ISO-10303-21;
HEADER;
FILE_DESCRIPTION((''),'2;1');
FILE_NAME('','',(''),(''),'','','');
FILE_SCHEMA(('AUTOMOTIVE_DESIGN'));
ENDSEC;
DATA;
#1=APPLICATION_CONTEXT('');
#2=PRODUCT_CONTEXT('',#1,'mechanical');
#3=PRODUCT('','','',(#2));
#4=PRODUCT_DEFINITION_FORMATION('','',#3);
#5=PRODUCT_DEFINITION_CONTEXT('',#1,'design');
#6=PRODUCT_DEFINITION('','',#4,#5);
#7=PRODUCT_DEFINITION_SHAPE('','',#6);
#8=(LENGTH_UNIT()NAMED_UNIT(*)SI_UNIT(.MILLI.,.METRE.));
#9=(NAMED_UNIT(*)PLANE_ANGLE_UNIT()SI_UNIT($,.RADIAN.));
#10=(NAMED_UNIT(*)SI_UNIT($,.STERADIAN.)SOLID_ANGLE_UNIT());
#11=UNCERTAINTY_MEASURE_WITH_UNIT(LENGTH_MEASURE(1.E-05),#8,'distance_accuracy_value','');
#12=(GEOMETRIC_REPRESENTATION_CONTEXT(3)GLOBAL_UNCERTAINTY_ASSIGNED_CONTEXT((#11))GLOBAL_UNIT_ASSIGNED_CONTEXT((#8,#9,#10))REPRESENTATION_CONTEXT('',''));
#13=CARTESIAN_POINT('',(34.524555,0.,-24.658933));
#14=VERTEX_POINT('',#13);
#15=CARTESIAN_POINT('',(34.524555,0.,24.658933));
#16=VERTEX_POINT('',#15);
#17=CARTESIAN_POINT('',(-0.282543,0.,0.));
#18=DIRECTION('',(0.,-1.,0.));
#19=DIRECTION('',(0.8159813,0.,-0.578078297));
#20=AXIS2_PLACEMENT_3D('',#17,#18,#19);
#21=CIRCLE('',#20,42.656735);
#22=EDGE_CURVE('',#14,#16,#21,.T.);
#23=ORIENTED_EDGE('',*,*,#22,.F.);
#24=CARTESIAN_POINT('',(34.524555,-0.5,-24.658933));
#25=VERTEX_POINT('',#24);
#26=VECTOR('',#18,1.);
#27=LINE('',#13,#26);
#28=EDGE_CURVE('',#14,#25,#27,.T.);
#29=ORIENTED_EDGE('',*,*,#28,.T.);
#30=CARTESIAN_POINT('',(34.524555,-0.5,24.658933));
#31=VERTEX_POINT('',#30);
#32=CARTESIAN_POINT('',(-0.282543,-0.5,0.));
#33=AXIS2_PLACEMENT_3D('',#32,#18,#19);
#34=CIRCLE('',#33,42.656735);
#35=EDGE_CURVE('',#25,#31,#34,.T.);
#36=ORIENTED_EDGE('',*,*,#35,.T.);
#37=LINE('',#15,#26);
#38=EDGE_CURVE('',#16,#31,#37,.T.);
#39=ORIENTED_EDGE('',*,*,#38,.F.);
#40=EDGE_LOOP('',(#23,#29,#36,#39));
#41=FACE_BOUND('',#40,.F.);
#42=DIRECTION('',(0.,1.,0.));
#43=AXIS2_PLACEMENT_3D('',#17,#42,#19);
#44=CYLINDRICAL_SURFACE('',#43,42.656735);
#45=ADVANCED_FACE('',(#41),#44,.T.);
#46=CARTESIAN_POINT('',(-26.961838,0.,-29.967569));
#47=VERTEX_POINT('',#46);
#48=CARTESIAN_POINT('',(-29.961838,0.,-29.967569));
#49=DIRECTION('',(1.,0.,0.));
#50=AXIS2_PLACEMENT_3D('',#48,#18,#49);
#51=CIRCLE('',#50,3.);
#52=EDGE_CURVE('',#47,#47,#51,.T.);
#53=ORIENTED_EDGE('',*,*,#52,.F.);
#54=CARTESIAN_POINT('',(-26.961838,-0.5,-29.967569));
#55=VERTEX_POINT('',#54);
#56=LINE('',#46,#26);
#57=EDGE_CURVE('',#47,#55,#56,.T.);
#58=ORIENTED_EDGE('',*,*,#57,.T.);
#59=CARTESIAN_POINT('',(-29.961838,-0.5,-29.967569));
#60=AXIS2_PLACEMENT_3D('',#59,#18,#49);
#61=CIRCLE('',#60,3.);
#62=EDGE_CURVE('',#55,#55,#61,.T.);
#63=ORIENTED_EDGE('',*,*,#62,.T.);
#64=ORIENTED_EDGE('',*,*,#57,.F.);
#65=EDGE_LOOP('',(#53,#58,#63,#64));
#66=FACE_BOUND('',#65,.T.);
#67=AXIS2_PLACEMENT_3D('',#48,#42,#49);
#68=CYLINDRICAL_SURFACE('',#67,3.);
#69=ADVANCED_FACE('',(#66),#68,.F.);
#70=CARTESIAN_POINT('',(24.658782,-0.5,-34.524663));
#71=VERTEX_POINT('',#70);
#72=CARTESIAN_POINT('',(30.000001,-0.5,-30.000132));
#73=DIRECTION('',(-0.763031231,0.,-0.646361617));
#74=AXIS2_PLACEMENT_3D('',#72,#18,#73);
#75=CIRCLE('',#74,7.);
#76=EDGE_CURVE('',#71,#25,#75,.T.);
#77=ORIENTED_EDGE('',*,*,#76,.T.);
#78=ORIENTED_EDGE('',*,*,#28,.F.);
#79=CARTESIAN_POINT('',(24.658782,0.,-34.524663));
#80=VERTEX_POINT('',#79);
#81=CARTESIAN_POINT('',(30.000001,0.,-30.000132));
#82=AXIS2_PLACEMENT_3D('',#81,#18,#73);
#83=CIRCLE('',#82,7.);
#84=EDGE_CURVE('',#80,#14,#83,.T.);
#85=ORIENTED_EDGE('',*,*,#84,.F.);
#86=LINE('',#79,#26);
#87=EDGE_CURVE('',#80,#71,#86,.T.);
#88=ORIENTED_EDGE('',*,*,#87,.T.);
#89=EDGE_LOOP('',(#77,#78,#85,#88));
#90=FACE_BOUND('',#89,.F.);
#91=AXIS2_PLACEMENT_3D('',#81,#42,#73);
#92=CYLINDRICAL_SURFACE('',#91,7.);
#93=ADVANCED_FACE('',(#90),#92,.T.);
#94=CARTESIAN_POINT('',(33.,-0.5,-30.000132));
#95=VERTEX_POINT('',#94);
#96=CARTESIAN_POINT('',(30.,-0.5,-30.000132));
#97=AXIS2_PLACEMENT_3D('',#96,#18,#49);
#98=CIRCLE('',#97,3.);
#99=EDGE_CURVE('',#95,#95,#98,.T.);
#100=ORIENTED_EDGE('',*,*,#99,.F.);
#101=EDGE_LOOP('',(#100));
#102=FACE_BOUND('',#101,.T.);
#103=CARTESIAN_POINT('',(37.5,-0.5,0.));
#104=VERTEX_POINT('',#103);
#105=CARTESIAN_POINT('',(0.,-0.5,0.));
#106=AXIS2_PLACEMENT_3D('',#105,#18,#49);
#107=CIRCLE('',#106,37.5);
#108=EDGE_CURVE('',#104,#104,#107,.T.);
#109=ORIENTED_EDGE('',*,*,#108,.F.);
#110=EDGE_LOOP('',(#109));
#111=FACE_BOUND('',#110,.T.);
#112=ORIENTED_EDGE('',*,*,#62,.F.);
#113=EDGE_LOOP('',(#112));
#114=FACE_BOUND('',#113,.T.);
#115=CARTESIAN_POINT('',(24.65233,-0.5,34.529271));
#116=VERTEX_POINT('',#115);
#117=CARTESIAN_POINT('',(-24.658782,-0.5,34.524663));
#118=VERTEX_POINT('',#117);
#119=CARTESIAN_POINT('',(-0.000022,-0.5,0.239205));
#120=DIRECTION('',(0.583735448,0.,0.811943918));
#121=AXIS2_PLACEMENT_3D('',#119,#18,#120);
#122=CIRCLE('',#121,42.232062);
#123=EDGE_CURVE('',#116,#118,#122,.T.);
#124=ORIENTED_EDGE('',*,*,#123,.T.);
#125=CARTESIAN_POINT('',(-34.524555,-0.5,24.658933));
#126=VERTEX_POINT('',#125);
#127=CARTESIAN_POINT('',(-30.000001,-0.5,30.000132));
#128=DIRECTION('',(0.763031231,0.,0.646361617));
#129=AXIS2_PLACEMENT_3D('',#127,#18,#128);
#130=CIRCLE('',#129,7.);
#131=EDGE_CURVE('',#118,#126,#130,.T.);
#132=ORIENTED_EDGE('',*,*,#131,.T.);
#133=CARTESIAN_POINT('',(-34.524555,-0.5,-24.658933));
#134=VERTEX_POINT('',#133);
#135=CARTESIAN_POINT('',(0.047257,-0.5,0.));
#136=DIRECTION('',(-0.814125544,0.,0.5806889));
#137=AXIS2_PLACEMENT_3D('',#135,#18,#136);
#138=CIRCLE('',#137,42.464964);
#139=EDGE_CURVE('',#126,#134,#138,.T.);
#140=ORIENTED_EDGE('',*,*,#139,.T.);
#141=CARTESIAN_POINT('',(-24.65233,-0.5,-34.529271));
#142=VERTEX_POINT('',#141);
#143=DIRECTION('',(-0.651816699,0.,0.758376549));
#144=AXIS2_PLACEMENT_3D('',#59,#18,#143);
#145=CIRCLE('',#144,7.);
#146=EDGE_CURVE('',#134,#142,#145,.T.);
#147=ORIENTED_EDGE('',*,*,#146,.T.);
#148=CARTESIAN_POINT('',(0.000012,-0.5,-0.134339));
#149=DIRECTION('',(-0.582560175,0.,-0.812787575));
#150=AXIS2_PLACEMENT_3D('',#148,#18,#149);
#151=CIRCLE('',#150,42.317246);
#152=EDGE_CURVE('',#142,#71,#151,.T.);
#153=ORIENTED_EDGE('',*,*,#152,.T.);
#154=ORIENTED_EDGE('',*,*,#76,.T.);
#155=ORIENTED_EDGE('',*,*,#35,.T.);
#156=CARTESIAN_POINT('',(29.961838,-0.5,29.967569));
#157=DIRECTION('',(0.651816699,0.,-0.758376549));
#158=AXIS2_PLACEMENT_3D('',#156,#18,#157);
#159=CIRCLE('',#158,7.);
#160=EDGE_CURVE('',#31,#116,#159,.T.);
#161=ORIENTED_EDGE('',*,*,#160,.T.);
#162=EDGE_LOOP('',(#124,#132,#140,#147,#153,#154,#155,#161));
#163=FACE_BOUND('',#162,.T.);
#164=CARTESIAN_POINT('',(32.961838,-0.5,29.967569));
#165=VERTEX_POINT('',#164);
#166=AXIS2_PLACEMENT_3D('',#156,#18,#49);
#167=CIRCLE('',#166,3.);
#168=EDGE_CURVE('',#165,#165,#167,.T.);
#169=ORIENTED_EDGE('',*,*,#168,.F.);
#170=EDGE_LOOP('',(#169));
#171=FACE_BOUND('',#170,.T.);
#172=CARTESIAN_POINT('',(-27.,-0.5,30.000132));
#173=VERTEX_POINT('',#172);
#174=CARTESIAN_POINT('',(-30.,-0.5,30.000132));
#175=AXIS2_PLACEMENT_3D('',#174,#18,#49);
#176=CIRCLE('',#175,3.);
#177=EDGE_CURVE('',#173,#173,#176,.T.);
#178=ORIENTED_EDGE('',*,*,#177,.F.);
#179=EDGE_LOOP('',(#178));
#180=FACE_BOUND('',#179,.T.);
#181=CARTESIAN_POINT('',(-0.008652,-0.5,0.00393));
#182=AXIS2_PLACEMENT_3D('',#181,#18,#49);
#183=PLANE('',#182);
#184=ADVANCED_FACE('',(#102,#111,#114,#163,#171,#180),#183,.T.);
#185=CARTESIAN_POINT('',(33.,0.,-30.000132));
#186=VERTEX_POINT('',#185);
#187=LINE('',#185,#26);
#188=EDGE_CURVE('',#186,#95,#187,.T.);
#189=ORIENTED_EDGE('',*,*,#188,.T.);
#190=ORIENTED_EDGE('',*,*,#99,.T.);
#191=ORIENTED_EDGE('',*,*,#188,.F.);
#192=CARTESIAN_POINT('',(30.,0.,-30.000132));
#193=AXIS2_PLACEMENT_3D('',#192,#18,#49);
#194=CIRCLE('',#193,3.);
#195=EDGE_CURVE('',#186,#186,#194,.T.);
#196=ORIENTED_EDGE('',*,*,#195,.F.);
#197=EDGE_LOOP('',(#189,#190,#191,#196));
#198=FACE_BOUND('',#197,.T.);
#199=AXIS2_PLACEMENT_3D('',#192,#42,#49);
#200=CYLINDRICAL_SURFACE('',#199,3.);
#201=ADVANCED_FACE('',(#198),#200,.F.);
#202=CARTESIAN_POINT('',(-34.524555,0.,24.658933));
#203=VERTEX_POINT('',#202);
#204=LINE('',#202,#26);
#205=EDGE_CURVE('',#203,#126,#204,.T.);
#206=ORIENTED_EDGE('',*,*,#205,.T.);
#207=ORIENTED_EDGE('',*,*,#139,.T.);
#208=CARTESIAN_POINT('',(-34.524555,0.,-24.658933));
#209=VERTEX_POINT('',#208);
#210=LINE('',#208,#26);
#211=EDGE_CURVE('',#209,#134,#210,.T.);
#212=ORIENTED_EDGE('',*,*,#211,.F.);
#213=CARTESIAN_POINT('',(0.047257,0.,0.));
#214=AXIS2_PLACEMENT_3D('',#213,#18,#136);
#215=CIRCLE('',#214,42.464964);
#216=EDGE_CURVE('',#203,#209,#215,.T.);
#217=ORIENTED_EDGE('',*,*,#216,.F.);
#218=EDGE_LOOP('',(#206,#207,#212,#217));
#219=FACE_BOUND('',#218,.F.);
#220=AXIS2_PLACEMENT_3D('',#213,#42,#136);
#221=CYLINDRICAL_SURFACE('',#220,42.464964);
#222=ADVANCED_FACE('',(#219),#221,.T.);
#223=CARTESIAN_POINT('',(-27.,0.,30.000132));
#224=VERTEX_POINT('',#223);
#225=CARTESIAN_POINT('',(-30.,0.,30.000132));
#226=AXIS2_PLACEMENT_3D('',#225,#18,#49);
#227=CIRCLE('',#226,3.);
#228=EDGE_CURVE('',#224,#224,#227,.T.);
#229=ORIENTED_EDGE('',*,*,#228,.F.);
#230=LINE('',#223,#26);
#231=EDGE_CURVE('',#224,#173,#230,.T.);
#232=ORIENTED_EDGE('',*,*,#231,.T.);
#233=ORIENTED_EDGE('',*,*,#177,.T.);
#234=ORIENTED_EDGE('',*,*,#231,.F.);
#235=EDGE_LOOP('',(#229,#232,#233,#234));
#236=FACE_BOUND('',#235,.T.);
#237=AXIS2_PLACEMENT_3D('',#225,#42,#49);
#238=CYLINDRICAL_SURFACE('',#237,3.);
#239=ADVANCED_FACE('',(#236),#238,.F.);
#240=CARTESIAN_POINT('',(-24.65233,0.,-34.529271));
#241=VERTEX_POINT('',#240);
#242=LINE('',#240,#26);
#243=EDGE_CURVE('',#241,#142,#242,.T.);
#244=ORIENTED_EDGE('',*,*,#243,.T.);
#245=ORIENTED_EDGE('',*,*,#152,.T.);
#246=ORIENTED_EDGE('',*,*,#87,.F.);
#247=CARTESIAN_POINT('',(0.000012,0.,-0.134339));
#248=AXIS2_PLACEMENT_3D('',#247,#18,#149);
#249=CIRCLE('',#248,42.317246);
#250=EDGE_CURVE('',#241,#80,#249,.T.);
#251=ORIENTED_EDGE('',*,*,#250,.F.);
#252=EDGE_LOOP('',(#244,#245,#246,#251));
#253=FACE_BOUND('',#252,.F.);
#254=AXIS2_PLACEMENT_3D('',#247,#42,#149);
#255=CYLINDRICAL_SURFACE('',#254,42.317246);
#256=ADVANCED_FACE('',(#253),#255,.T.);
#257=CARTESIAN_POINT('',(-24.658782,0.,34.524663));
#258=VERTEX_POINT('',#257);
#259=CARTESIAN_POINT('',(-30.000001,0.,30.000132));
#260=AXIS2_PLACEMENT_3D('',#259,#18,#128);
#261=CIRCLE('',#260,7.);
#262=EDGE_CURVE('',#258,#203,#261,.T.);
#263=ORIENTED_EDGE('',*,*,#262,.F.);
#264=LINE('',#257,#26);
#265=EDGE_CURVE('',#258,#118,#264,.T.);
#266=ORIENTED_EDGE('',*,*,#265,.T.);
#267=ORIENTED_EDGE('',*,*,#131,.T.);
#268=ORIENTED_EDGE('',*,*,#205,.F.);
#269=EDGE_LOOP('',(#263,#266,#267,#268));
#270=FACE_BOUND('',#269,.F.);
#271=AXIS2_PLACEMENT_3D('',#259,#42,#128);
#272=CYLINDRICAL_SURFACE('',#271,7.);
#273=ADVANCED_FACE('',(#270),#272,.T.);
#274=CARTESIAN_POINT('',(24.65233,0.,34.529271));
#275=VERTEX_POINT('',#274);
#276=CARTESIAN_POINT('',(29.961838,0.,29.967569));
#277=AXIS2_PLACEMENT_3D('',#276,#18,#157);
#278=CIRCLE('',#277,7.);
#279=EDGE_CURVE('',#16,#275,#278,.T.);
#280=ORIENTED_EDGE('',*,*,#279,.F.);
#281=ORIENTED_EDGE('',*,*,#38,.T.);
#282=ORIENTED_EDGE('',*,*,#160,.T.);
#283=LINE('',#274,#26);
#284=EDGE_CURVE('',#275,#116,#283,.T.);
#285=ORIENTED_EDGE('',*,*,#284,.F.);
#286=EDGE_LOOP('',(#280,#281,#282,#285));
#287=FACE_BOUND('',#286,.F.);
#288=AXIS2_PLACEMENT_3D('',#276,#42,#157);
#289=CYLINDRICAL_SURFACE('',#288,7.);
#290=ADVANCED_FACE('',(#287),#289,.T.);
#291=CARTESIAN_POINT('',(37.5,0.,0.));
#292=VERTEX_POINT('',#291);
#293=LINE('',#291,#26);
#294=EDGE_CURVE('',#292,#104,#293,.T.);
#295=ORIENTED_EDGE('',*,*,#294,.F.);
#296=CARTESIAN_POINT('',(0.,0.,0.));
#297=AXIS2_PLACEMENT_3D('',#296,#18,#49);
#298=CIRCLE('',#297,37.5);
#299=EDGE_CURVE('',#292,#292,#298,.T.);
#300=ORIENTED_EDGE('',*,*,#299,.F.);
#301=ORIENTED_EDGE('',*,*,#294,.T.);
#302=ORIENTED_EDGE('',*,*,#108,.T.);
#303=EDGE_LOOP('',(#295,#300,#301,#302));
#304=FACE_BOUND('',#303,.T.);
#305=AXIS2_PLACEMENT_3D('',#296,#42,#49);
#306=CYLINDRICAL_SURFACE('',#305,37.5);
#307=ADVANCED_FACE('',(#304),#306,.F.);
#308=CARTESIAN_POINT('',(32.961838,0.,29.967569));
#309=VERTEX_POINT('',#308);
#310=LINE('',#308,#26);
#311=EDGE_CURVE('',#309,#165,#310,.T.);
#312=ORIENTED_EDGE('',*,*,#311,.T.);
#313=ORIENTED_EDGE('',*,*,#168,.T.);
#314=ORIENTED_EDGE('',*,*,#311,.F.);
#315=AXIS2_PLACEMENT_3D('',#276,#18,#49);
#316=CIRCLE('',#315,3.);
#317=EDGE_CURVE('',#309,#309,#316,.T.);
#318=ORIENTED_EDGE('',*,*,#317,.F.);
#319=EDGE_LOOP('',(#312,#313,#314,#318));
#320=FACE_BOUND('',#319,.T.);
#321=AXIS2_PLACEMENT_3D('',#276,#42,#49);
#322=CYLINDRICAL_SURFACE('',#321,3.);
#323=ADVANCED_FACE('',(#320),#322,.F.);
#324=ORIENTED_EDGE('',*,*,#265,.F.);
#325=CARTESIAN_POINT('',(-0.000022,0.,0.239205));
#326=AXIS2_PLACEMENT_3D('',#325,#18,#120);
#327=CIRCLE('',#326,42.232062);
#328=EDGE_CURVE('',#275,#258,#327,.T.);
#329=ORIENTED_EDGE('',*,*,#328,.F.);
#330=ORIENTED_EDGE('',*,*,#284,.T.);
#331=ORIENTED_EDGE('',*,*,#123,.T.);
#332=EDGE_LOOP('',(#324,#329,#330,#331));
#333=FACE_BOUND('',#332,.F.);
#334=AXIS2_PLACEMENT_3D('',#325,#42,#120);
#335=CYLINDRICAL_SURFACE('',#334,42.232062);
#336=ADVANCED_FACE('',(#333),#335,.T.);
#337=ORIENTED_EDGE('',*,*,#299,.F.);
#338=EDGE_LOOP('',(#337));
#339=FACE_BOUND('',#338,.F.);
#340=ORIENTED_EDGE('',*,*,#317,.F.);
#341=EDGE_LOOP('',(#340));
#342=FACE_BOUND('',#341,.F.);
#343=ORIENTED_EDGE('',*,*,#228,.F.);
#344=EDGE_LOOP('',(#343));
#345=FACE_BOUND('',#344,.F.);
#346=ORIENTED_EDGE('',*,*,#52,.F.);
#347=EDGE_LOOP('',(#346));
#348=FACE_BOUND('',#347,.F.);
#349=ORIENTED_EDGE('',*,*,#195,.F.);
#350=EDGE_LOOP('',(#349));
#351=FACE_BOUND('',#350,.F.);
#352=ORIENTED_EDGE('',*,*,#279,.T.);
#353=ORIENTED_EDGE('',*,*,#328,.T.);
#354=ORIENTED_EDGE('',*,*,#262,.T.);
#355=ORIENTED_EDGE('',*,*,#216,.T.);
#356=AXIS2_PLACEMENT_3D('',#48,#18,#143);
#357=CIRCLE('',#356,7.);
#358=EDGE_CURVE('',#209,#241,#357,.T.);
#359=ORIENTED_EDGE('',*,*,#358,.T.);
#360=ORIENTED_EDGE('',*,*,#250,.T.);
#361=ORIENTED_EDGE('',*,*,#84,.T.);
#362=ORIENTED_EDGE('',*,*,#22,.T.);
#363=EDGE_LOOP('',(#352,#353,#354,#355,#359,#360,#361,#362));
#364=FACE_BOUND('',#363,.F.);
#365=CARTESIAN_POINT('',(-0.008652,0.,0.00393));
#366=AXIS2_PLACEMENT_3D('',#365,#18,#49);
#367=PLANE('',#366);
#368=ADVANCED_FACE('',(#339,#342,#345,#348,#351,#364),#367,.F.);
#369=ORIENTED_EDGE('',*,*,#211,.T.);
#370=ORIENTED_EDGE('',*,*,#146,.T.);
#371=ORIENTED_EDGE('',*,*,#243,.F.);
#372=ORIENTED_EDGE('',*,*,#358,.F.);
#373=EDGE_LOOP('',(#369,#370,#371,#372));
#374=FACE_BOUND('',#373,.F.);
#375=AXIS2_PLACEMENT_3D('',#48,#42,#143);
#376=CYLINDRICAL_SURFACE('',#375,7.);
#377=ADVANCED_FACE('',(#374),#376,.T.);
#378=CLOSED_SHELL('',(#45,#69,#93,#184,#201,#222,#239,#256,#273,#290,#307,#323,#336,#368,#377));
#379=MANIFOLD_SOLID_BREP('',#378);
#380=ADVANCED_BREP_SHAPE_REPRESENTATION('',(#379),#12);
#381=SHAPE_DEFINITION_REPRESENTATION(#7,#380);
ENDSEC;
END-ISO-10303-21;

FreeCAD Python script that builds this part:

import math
import FreeCAD as App
import Part
import Sketcher

doc = App.newDocument("Part")
body = doc.addObject("PartDesign::Body", "Body")

sketch1 = doc.addObject("Sketcher::SketchObject", "Sketch")
body.addObject(sketch1)
sketch1.AttachmentSupport = (doc.XZ_Plane, [""])
sketch1.MapMode = "FlatFace"
sketch1.addGeometry([
    Part.ArcOfCircle(Part.Circle(App.Vector(0, 0.2, 0), App.Vector(0, 0, 1), 42.2), math.radians(54), math.radians(126)),
    Part.ArcOfCircle(Part.Circle(App.Vector(-30, 30, 0), App.Vector(0, 0, 1), 7), math.radians(40), math.radians(230)),
    Part.ArcOfCircle(Part.Circle(App.Vector(0, 0, 0), App.Vector(0, 0, 1), 42.5), math.radians(145), math.radians(215)),
    Part.ArcOfCircle(Part.Circle(App.Vector(-30, -30, 0), App.Vector(0, 0, 1), 7), math.radians(131), math.radians(319)),
    Part.ArcOfCircle(Part.Circle(App.Vector(0, -0.1, 0), App.Vector(0, 0, 1), 42.3), math.radians(-126), math.radians(-54)),
    Part.ArcOfCircle(Part.Circle(App.Vector(30, -30, 0), App.Vector(0, 0, 1), 7), math.radians(-140), math.radians(50)),
    Part.ArcOfCircle(Part.Circle(App.Vector(-0.3, 0, 0), App.Vector(0, 0, 1), 42.7), math.radians(-35), math.radians(35)),
    Part.ArcOfCircle(Part.Circle(App.Vector(30, 30, 0), App.Vector(0, 0, 1), 7), math.radians(-49), math.radians(139)),
    Part.Circle(App.Vector(-30, -30, 0), App.Vector(0, 0, 1), 3),
    Part.Circle(App.Vector(30, -30, 0), App.Vector(0, 0, 1), 3),
    Part.Circle(App.Vector(-30, 30, 0), App.Vector(0, 0, 1), 3),
    Part.Circle(App.Vector(0, 0, 0), App.Vector(0, 0, 1), 37.5),
    Part.Circle(App.Vector(30, 30, 0), App.Vector(0, 0, 1), 3),
], False)
sketch1.addConstraint([
    Sketcher.Constraint("Coincident", 0, 2, 1, 1),
    Sketcher.Constraint("Coincident", 1, 2, 2, 1),
    Sketcher.Constraint("Coincident", 2, 2, 3, 1),
    Sketcher.Constraint("Coincident", 3, 2, 4, 1),
    Sketcher.Constraint("Coincident", 4, 2, 5, 1),
    Sketcher.Constraint("Coincident", 5, 2, 6, 1),
    Sketcher.Constraint("Coincident", 6, 2, 7, 1),
    Sketcher.Constraint("Coincident", 7, 2, 0, 1),
    Sketcher.Constraint("Coincident", 11, 3, -1, 1),
    Sketcher.Constraint("Coincident", 8, 3, 3, 3),
    Sketcher.Constraint("Coincident", 9, 3, 5, 3),
    Sketcher.Constraint("Coincident", 10, 3, 1, 3),
    Sketcher.Constraint("Coincident", 12, 3, 7, 3),
    Sketcher.Constraint("Equal", 1, 3),
    Sketcher.Constraint("Equal", 3, 5),
    Sketcher.Constraint("Equal", 5, 7),
    Sketcher.Constraint("Equal", 8, 9),
    Sketcher.Constraint("Equal", 9, 10),
    Sketcher.Constraint("Equal", 10, 12),
    Sketcher.Constraint("Symmetric", 1, 3, 5, 3, -1, 1),
    Sketcher.Constraint("Symmetric", 3, 3, 7, 3, -1, 1),
    Sketcher.Constraint("Symmetric", 2, 2, 5, 2, -2),
    Sketcher.Constraint("PointOnObject", 2, 3, -1),
    Sketcher.Constraint("PointOnObject", 6, 3, -1),
    Sketcher.Constraint("Diameter", 8, 6.0),
    Sketcher.Constraint("Diameter", 11, 75.0),
    Sketcher.Constraint("Radius", 1, 7.0),
    Sketcher.Constraint("DistanceX", 1, 3, -1, 1, 30.000001),
    Sketcher.Constraint("Radius", 0, 42.232062),
    Sketcher.Constraint("Radius", 2, 42.464964),
    Sketcher.Constraint("Radius", 4, 42.317246),
    Sketcher.Constraint("Radius", 6, 42.656735),
    Sketcher.Constraint("DistanceY", 3, 3, 1, 3, 59.967701),
    Sketcher.Constraint("DistanceX", 6, 3, 2, 3, 0.3298),
    Sketcher.Constraint("DistanceY", 1, 2, 1, 3, 5.341199),
    Sketcher.Constraint("DistanceY", 3, 2, 8, 3, 4.561702),
    Sketcher.Constraint("DistanceY", 12, 3, 7, 2, 4.561702),
    Sketcher.Constraint("DistanceY", 4, 3, -1, 1, 0.134339),
    Sketcher.Constraint("DistanceX", 0, 2, -1, 1, 24.658782),
])
pad1 = doc.addObject("PartDesign::Pad", "Pad")
body.addObject(pad1)
pad1.Profile = sketch1
pad1.Length = 0.5

doc.recompute()
